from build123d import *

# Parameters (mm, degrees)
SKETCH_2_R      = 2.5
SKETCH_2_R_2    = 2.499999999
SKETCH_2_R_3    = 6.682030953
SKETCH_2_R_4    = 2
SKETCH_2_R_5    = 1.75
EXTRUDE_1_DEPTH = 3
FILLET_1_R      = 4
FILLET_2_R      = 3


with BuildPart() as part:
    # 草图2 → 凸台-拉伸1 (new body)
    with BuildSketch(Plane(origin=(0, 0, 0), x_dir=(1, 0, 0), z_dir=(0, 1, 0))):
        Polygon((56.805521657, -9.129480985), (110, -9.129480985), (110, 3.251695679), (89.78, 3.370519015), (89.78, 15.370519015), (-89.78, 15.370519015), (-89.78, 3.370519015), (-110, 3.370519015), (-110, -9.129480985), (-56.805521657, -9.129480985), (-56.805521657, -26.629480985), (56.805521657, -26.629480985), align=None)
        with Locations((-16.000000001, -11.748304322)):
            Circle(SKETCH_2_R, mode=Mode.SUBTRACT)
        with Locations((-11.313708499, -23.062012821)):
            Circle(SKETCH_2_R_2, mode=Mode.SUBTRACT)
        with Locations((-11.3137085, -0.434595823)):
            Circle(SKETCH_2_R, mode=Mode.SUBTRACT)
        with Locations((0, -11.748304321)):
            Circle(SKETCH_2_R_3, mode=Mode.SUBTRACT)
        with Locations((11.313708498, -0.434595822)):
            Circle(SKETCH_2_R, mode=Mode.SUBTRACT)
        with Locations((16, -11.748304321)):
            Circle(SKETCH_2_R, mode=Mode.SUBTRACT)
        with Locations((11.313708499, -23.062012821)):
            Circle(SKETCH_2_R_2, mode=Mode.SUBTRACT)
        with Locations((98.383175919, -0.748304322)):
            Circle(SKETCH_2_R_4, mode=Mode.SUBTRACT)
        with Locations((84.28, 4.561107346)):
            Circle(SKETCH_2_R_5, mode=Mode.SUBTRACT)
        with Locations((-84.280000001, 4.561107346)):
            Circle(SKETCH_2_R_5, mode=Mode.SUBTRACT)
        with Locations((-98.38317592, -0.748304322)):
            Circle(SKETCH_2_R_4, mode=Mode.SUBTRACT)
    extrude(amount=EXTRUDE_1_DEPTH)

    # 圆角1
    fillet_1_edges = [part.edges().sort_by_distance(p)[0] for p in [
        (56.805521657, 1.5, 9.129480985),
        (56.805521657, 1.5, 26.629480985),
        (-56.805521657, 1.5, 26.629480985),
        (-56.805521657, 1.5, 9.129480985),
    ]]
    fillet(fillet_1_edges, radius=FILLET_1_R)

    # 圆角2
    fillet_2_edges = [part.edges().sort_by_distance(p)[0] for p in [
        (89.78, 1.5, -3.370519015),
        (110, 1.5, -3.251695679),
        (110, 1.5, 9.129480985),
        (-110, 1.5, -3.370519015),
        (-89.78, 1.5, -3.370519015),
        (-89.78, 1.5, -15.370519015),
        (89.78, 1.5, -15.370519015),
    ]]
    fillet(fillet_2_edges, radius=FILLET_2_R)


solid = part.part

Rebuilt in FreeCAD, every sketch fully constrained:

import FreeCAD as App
import Part
import Sketcher
from FreeCAD import Vector
Q = App.Units.Quantity


def edges_at(feature, points):
    """Names of the edges that pass closest to the given points."""
    edges = feature.Shape.Edges
    near = lambda p: min(range(len(edges)), key=lambda i: edges[i].distToShape(Part.Vertex(*p))[0])
    return sorted({f"Edge{near(p) + 1}" for p in points})


def add_polygon(sketch, points):
    """Adds a closed chain of lines whose ends are joined by coincident constraints."""
    first, n = sketch.GeometryCount, len(points)
    for a, b in zip(points, points[1:] + points[:1]):
        sketch.addGeometry(Part.LineSegment(App.Vector(*a, 0), App.Vector(*b, 0)), False)
    for i in range(n):
        sketch.addConstraint(Sketcher.Constraint("Coincident", first + i, 2, first + (i + 1) % n, 1))

doc = App.newDocument("Part")
params = doc.addObject("Spreadsheet::Sheet", "Params")
for row, (alias, value) in enumerate([
    ("sketch1_diameter", "5 mm"),
    ("sketch1_diameter2", "4 mm"),
    ("sketch1_diameter3", "3.5 mm"),
    ("sketch1_height", "12 mm"),
    ("sketch1_height2", "12.5 mm"),
    ("pad1_length", "3 mm"),
    ("fillet_radius", "4 mm"),
    ("fillet2_radius", "3 mm"),
], start=1):
    params.set(f"A{row}", alias)
    params.set(f"B{row}", "=" + value)
    params.setAlias(f"B{row}", alias)

body = doc.addObject("PartDesign::Body", "Body")

# Sketch on XZ plane
sketch1 = body.newObject("Sketcher::SketchObject", "Sketch")
sketch1.AttachmentSupport = (doc.getObject("XZ_Plane"), [""])
sketch1.MapMode = "FlatFace"
add_polygon(sketch1, [(56.8, 9.1), (110, 9.1), (110, -3.3), (89.8, -3.4), (89.8, -15.4), (-89.8, -15.4), (-89.8, -3.4), (-110, -3.4), (-110, 9.1), (-56.8, 9.1), (-56.8, 26.6), (56.8, 26.6)])  # lines 0-11
sketch1.addGeometry(Part.Circle(Vector(-11.3, 23.1, 0), Vector(0, 0, 1), 2.5), False)  # 12
sketch1.addGeometry(Part.Circle(Vector(-16, 11.7, 0), Vector(0, 0, 1), 2.5), False)  # 13
sketch1.addGeometry(Part.Circle(Vector(11.3, 23.1, 0), Vector(0, 0, 1), 2.5), False)  # 14
sketch1.addGeometry(Part.Circle(Vector(0, 11.7, 0), Vector(0, 0, 1), 6.7), False)  # 15
sketch1.addGeometry(Part.Circle(Vector(16, 11.7, 0), Vector(0, 0, 1), 2.5), False)  # 16
sketch1.addGeometry(Part.Circle(Vector(-98.4, 0.7, 0), Vector(0, 0, 1), 2), False)  # 17
sketch1.addGeometry(Part.Circle(Vector(-84.3, -4.6, 0), Vector(0, 0, 1), 1.8), False)  # 18
sketch1.addGeometry(Part.Circle(Vector(-11.3, 0.4, 0), Vector(0, 0, 1), 2.5), False)  # 19
sketch1.addGeometry(Part.Circle(Vector(11.3, 0.4, 0), Vector(0, 0, 1), 2.5), False)  # 20
sketch1.addGeometry(Part.Circle(Vector(98.4, 0.7, 0), Vector(0, 0, 1), 2), False)  # 21
sketch1.addGeometry(Part.Circle(Vector(84.3, -4.6, 0), Vector(0, 0, 1), 1.8), False)  # 22
sketch1.addConstraint(Sketcher.Constraint("Horizontal", 0))
sketch1.addConstraint(Sketcher.Constraint("Vertical", 1))
sketch1.addConstraint(Sketcher.Constraint("Vertical", 3))
sketch1.addConstraint(Sketcher.Constraint("Horizontal", 4))
sketch1.addConstraint(Sketcher.Constraint("Vertical", 5))
sketch1.addConstraint(Sketcher.Constraint("Horizontal", 6))
sketch1.addConstraint(Sketcher.Constraint("Vertical", 7))
sketch1.addConstraint(Sketcher.Constraint("Horizontal", 8))
sketch1.addConstraint(Sketcher.Constraint("Vertical", 9))
sketch1.addConstraint(Sketcher.Constraint("Horizontal", 10))
sketch1.addConstraint(Sketcher.Constraint("Vertical", 11))
sketch1.addConstraint(Sketcher.Constraint("Equal", 12, 13))
sketch1.addConstraint(Sketcher.Constraint("Equal", 13, 14))
sketch1.addConstraint(Sketcher.Constraint("Equal", 14, 16))
sketch1.addConstraint(Sketcher.Constraint("Equal", 16, 19))
sketch1.addConstraint(Sketcher.Constraint("Equal", 19, 20))
sketch1.addConstraint(Sketcher.Constraint("Equal", 17, 21))
sketch1.addConstraint(Sketcher.Constraint("Equal", 18, 22))
sketch1.addConstraint(Sketcher.Constraint("Symmetric", 12, 3, 14, 3, -2))
sketch1.addConstraint(Sketcher.Constraint("Symmetric", 13, 3, 16, 3, -2))
sketch1.addConstraint(Sketcher.Constraint("Symmetric", 19, 3, 20, 3, -2))
sketch1.addConstraint(Sketcher.Constraint("Symmetric", 17, 3, 21, 3, -2))
sketch1.addConstraint(Sketcher.Constraint("Symmetric", 18, 3, 22, 3, -2))
sketch1.addConstraint(Sketcher.Constraint("Symmetric", 2, 2, 5, 2, -2))
sketch1.addConstraint(Sketcher.Constraint("Symmetric", 0, 2, 7, 2, -2))
sketch1.addConstraint(Sketcher.Constraint("PointOnObject", 15, 3, -2))
sketch1.addConstraint(Sketcher.Constraint("Horizontal", 13, 3, 15, 3))
sketch1.addConstraint(Sketcher.Constraint("Vertical", 12, 3, 19, 3))
sketch1.addConstraint(Sketcher.Constraint("Equal", 0, 8))
sketch1.addConstraint(Sketcher.Constraint("Diameter", 12, Q("5 mm")))
sketch1.addConstraint(Sketcher.Constraint("Diameter", 17, Q("4 mm")))
sketch1.addConstraint(Sketcher.Constraint("Diameter", 18, Q("3.5 mm")))
sketch1.addConstraint(Sketcher.Constraint("DistanceY", 3, 2, 3, 1, Q("12 mm")))
sketch1.addConstraint(Sketcher.Constraint("DistanceY", 7, 1, 7, 2, Q("12.5 mm")))
sketch1.addConstraint(Sketcher.Constraint("DistanceY", 9, 1, 9, 2, Q("17.5 mm")))
sketch1.addConstraint(Sketcher.Constraint("DistanceX", 13, 3, -1, 1, Q("16 mm")))
sketch1.addConstraint(Sketcher.Constraint("DistanceX", -1, 1, 0, 2, Q("110 mm")))
sketch1.addConstraint(Sketcher.Constraint("DistanceY", 17, 3, 13, 3, Q("11 mm")))
sketch1.addConstraint(Sketcher.Constraint("DistanceY", 1, 2, 21, 3, Q("4 mm")))
sketch1.addConstraint(Sketcher.Constraint("DistanceX", 4, 2, 4, 1, Q("179.56 mm")))
sketch1.addConstraint(Sketcher.Constraint("DistanceX", 22, 3, 2, 2, Q("5.5 mm")))
sketch1.addConstraint(Sketcher.Constraint("Diameter", 15, Q("13.364062 mm")))
sketch1.addConstraint(Sketcher.Constraint("DistanceX", 0, 1, 0, 2, Q("53.194478 mm")))
sketch1.addConstraint(Sketcher.Constraint("DistanceY", 1, 2, 1, 1, Q("12.381177 mm")))
sketch1.addConstraint(Sketcher.Constraint("DistanceX", 12, 3, -1, 1, Q("11.313708 mm")))
sketch1.addConstraint(Sketcher.Constraint("DistanceY", -1, 1, 0, 2, Q("9.129481 mm")))
sketch1.addConstraint(Sketcher.Constraint("DistanceY", 13, 3, 12, 3, Q("11.313708 mm")))
sketch1.addConstraint(Sketcher.Constraint("DistanceY", 18, 3, 17, 3, Q("5.309412 mm")))
sketch1.addConstraint(Sketcher.Constraint("DistanceY", 19, 3, 13, 3, Q("11.313708 mm")))
sketch1.addConstraint(Sketcher.Constraint("DistanceX", 17, 3, -1, 1, Q("98.383176 mm")))
sketch1.setExpression("Constraints[41]", "Params.sketch1_diameter")
sketch1.setExpression("Constraints[42]", "Params.sketch1_diameter2")
sketch1.setExpression("Constraints[43]", "Params.sketch1_diameter3")
sketch1.setExpression("Constraints[44]", "Params.sketch1_height")
sketch1.setExpression("Constraints[45]", "Params.sketch1_height2")
pad1 = body.newObject("PartDesign::Pad", "Pad")
pad1.Profile = sketch1
pad1.setExpression("Length", "Params.pad1_length")
pad1.Reversed = True
doc.recompute()

fillet = body.newObject("PartDesign::Fillet", "Fillet")
fillet.Base = (pad1, edges_at(pad1, [
    (56.806, 1.5, 9.129),
    (56.806, 1.5, 26.629),
    (-56.806, 1.5, 26.629),
    (-56.806, 1.5, 9.129),
]))
fillet.setExpression("Radius", "Params.fillet_radius")
doc.recompute()

fillet2 = body.newObject("PartDesign::Fillet", "Fillet001")
fillet2.Base = (fillet, edges_at(fillet, [
    (89.78, 1.5, -3.371),
    (110, 1.5, -3.252),
    (110, 1.5, 9.129),
    (-110, 1.5, -3.371),
    (-89.78, 1.5, -3.371),
    (-89.78, 1.5, -15.371),
    (89.78, 1.5, -15.371),
]))
fillet2.setExpression("Radius", "Params.fillet2_radius")

doc.recompute()
